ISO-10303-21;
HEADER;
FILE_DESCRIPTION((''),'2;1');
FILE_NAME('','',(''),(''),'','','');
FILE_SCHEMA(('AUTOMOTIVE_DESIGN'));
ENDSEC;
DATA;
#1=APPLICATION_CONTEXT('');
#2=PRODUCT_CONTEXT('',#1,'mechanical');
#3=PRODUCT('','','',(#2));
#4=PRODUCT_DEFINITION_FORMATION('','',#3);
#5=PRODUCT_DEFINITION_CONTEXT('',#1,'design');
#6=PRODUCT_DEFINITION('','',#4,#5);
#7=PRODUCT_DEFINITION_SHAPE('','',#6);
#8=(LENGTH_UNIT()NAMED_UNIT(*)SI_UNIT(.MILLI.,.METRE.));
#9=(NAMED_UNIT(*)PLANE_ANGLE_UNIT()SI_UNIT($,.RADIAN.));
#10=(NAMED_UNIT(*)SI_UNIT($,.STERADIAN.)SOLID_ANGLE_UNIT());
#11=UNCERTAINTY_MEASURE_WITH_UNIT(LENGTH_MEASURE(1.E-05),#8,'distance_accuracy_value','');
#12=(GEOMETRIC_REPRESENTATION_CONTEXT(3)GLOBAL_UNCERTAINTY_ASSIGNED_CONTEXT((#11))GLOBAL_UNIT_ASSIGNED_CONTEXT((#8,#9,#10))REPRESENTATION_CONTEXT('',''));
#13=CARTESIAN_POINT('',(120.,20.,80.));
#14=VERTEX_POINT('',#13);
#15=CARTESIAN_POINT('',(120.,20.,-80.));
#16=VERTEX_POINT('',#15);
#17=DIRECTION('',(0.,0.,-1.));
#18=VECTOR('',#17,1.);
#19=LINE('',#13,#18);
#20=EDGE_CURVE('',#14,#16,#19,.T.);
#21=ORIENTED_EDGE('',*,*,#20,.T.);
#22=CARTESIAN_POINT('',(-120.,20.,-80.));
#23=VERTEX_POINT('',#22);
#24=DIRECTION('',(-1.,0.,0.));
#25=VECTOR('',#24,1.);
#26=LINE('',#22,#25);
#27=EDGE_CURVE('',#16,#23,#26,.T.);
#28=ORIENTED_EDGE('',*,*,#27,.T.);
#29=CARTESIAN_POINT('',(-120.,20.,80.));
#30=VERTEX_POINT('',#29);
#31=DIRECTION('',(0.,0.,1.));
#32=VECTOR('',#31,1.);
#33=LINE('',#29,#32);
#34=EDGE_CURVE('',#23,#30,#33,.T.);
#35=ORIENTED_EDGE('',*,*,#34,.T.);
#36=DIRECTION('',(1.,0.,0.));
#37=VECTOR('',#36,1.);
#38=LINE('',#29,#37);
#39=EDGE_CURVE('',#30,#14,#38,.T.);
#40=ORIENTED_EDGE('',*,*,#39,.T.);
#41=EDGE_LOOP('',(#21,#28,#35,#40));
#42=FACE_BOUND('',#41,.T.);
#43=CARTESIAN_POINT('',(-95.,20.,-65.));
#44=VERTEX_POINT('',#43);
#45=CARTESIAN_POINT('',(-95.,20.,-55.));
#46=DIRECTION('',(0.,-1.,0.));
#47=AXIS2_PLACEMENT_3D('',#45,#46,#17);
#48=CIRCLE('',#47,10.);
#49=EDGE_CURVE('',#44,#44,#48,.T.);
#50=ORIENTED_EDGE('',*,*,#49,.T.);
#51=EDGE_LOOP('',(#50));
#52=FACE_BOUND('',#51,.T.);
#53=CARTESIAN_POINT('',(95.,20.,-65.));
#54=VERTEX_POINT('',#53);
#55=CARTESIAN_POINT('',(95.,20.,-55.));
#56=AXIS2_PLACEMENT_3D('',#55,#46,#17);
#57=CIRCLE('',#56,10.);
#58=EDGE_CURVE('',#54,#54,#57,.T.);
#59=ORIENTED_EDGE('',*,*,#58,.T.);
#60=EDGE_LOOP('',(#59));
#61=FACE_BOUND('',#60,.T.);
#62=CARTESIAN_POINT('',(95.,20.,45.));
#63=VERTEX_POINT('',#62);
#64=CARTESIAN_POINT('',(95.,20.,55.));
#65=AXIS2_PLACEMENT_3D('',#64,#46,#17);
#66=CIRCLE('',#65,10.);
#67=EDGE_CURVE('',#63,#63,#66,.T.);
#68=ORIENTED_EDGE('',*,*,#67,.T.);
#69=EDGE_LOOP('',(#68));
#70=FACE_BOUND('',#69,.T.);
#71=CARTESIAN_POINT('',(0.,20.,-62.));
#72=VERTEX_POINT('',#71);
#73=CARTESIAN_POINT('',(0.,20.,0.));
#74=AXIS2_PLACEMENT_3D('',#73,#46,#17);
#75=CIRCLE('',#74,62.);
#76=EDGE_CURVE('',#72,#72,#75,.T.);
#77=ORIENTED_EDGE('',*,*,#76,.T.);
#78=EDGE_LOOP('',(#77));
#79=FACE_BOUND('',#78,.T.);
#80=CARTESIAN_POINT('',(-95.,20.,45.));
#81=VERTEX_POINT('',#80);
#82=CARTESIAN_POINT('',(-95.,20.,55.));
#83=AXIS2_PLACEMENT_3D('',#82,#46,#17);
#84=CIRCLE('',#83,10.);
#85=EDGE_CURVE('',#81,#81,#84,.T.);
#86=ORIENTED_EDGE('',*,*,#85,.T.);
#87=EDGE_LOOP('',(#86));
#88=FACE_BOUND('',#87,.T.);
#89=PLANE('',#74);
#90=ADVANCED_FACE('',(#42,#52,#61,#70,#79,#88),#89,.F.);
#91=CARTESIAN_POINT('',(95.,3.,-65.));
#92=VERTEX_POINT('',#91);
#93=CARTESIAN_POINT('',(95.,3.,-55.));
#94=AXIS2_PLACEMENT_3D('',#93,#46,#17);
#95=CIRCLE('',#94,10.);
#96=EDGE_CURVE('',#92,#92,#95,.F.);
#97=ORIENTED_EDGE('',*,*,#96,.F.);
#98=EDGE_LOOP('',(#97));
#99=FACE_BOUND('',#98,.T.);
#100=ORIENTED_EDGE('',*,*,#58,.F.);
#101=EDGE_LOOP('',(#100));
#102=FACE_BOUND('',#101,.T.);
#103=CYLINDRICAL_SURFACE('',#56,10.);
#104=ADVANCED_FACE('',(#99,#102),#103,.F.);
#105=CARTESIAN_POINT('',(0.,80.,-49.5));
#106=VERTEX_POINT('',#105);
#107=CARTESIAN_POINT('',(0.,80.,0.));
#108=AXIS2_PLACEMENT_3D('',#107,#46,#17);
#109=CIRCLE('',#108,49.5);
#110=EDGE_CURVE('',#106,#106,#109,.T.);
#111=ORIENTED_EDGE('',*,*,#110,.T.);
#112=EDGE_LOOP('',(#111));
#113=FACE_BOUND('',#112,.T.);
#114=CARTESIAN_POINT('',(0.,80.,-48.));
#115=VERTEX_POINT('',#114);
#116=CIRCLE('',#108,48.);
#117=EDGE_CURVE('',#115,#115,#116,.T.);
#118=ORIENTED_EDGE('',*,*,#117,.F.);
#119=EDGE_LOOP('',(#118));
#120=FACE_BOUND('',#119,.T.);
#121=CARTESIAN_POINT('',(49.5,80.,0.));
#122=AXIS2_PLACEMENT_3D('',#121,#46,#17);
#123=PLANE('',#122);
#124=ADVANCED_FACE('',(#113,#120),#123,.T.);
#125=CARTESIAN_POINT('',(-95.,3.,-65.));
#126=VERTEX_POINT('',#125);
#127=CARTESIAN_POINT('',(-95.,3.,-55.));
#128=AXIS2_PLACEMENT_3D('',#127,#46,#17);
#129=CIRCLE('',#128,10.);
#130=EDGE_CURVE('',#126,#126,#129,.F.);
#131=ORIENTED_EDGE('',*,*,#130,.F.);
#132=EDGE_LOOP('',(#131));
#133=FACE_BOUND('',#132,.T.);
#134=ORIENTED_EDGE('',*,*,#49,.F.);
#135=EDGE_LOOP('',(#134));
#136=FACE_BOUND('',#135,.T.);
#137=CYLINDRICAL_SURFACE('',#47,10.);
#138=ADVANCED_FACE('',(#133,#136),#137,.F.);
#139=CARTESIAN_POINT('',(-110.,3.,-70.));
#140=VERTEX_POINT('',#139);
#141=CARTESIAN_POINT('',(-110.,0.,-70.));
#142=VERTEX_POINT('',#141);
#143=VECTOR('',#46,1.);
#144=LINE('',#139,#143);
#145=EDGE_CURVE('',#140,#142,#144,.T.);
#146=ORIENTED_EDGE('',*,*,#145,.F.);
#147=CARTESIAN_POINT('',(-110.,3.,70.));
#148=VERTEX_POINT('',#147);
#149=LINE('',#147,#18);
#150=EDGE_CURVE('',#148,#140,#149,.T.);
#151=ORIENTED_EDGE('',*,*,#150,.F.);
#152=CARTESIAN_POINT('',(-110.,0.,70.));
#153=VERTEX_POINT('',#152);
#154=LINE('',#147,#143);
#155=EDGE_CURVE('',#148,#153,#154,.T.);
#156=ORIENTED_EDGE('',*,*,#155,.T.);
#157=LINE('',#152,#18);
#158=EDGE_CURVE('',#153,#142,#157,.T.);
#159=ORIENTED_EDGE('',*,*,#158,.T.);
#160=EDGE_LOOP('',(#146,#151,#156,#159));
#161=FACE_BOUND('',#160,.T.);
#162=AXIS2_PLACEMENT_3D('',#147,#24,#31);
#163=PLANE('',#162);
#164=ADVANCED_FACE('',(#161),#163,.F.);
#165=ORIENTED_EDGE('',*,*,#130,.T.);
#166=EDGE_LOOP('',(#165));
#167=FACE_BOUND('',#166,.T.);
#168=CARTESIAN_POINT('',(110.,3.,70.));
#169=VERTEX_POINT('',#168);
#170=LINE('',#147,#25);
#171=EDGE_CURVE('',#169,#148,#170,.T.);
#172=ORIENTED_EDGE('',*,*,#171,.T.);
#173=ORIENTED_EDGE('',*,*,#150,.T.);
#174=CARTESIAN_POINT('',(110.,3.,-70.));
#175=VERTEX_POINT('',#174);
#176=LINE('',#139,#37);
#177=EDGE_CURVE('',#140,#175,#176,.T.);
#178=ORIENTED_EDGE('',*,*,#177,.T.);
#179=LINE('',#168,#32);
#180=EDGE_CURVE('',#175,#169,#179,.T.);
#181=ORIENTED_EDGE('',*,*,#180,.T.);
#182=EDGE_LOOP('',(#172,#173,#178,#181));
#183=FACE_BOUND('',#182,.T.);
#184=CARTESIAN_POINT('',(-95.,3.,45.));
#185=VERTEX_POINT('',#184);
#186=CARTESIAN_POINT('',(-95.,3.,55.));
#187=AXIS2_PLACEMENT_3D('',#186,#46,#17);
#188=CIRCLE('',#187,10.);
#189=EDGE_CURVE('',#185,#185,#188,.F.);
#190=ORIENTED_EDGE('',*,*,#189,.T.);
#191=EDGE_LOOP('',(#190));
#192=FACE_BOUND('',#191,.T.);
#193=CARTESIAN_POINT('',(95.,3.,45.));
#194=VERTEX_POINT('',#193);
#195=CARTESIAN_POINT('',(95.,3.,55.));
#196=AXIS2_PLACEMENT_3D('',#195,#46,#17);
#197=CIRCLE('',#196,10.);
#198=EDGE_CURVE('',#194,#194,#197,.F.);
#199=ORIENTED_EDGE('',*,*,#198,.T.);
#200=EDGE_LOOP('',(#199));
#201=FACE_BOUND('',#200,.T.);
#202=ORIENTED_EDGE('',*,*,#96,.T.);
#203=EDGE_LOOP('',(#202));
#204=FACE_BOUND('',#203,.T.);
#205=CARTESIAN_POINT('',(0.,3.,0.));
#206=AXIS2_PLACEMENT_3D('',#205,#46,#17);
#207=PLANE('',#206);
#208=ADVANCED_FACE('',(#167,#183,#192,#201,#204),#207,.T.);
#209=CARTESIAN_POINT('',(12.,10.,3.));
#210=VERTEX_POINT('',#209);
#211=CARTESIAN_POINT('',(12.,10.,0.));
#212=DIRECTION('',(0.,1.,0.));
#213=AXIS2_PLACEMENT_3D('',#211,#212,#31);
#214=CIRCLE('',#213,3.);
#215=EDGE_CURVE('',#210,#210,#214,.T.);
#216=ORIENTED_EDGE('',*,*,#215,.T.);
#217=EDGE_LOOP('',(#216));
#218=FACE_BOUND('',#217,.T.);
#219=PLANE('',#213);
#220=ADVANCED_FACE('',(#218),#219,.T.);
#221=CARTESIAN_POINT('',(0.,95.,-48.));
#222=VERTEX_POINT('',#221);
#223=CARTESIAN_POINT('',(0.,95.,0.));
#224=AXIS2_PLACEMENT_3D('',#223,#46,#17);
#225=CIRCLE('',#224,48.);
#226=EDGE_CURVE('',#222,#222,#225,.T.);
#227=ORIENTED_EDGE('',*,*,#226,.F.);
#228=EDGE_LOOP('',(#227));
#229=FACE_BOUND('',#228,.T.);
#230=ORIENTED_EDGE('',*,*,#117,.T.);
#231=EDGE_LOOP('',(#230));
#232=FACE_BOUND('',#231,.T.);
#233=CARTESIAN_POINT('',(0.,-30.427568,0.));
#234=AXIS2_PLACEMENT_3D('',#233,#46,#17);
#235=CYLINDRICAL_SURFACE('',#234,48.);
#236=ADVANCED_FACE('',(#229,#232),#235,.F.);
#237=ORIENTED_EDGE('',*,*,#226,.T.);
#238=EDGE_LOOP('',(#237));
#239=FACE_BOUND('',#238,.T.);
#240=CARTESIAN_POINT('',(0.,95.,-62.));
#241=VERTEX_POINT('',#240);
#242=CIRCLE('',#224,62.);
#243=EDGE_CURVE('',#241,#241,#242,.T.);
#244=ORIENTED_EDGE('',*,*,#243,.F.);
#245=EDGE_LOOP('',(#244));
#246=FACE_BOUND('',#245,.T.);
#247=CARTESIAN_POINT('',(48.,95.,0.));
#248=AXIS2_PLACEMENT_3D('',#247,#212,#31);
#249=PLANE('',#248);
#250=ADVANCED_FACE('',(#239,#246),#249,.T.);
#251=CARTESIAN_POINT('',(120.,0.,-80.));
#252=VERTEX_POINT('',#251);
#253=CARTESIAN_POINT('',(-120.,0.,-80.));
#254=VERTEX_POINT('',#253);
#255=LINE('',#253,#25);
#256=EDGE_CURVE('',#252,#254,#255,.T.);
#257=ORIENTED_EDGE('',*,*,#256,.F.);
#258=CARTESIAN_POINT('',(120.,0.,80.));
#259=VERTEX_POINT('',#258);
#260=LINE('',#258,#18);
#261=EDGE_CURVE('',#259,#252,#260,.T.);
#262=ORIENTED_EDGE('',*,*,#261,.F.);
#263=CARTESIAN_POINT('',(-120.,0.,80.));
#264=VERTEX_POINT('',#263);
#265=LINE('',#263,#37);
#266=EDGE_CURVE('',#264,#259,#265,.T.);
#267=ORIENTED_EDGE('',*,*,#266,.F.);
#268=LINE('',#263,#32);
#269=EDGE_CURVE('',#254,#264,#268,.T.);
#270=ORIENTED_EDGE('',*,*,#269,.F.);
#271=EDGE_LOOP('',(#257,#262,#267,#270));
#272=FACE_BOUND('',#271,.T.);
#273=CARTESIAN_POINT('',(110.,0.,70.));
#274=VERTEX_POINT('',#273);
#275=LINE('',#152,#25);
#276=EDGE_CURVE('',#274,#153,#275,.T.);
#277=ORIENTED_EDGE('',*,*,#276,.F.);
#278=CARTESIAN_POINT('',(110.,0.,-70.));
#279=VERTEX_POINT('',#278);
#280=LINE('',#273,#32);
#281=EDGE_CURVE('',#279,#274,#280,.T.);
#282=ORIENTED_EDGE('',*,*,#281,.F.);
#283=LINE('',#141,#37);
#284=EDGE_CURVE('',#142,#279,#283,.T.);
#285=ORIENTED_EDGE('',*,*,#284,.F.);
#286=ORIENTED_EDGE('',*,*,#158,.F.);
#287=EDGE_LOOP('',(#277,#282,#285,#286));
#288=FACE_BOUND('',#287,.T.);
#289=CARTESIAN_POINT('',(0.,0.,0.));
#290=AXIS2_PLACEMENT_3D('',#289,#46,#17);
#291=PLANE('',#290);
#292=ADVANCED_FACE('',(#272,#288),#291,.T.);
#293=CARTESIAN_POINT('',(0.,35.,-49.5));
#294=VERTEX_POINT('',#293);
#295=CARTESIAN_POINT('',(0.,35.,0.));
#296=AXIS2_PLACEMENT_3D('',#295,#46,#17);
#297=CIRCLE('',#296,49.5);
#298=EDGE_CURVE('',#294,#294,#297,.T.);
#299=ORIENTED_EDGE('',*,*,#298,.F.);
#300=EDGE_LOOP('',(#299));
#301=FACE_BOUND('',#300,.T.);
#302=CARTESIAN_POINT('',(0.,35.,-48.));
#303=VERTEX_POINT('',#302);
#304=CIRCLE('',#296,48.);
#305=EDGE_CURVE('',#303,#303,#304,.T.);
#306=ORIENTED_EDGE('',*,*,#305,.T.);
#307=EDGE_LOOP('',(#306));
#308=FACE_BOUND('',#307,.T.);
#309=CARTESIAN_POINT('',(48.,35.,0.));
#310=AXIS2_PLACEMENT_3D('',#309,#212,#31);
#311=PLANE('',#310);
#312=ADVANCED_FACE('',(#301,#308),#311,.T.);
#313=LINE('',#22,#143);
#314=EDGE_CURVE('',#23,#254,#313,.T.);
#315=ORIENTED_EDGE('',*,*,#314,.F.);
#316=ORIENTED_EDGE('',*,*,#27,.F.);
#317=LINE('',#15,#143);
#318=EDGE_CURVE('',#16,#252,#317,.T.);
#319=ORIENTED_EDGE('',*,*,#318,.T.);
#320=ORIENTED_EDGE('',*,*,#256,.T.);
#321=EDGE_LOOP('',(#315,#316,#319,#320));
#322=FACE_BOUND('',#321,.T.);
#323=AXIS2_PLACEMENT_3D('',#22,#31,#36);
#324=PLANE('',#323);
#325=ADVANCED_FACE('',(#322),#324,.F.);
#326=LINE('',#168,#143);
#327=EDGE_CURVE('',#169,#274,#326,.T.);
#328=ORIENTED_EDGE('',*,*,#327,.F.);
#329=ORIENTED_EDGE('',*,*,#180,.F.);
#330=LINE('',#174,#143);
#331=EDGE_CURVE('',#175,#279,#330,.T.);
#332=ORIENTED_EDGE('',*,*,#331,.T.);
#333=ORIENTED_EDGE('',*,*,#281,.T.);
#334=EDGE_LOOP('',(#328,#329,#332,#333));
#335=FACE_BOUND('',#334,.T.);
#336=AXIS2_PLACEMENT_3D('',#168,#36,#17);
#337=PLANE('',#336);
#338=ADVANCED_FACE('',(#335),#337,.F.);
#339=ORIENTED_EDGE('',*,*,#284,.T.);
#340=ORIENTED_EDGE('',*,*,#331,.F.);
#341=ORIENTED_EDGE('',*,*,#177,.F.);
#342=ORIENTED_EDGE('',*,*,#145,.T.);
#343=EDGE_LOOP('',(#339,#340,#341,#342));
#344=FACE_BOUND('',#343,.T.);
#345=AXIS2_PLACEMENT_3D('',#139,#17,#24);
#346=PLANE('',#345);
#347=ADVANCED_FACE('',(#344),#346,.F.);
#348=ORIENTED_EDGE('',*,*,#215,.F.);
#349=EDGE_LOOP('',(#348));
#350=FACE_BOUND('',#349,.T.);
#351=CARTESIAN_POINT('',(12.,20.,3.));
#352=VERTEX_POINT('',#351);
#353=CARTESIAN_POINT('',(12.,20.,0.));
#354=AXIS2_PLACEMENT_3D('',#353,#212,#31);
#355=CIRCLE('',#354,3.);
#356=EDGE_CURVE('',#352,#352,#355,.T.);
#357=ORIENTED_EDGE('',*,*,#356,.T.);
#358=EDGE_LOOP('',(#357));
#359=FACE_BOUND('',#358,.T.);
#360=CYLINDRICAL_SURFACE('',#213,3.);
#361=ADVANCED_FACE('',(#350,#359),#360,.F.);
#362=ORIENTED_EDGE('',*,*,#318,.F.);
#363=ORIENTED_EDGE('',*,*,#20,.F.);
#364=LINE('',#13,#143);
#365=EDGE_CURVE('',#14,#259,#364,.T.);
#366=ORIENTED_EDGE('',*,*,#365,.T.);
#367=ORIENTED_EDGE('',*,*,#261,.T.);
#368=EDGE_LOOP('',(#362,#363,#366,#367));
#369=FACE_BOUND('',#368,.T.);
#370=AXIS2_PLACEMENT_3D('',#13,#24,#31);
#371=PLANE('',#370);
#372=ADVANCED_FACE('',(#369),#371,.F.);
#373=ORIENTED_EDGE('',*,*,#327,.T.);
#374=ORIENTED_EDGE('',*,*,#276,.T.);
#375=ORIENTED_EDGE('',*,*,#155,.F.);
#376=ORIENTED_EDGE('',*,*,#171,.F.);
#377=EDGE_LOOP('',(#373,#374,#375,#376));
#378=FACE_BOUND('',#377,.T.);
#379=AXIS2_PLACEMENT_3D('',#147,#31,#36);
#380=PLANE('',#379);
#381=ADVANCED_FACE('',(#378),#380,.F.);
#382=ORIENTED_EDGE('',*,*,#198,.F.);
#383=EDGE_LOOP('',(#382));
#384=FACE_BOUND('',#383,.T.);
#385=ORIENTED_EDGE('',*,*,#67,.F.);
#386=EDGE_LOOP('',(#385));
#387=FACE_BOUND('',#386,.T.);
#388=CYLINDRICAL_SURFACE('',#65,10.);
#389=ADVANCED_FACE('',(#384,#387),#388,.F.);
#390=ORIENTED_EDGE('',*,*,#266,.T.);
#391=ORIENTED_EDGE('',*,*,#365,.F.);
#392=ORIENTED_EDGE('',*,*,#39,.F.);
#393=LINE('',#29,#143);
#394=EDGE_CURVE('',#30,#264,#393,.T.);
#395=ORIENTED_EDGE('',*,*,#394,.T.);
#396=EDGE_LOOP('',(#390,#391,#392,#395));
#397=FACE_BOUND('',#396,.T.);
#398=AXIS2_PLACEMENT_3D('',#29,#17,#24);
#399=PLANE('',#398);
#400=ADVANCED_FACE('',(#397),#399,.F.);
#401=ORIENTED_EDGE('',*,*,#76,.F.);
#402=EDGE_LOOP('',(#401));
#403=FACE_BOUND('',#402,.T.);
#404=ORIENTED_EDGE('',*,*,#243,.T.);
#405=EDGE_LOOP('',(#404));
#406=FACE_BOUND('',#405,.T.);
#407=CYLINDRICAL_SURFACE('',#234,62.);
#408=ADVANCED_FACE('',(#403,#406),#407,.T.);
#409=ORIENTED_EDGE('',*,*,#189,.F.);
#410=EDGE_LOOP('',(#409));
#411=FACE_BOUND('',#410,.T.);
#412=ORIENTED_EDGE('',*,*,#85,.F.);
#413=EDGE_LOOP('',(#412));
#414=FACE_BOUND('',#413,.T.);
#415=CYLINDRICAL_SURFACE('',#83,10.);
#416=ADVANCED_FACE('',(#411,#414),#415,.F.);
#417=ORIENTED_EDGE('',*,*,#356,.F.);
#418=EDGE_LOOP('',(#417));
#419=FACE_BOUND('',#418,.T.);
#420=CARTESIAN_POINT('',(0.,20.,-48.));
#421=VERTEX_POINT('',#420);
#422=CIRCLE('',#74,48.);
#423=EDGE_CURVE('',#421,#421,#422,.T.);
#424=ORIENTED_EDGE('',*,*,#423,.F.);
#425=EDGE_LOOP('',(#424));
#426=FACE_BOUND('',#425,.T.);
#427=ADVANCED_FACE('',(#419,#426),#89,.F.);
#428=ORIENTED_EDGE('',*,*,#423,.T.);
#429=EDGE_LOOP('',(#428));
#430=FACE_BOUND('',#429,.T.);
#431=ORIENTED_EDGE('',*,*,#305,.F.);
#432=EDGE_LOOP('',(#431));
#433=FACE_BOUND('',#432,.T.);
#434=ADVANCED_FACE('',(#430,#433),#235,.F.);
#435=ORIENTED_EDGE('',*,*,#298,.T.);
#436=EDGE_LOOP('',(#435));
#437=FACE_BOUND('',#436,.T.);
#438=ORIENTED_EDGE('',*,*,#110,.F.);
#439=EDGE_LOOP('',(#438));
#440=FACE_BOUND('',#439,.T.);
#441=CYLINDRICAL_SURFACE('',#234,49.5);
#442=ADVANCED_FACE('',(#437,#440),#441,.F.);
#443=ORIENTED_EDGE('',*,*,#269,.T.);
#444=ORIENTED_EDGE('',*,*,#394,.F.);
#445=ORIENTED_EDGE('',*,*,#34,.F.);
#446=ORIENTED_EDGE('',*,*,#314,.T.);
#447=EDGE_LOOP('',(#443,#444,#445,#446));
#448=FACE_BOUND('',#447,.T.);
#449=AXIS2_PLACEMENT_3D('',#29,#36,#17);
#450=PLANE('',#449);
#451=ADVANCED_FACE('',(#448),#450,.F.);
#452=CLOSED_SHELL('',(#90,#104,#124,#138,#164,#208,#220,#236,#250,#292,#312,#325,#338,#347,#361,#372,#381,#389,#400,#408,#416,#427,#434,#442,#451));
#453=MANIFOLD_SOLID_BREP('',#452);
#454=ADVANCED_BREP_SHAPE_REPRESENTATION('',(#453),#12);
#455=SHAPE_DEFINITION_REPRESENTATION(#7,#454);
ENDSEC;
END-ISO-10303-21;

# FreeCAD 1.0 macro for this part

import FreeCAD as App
import Part
import Sketcher
from FreeCAD import Vector


def add_polygon(sketch, points):
    """Adds a closed chain of lines whose ends are joined by coincident constraints."""
    first, n = sketch.GeometryCount, len(points)
    for a, b in zip(points, points[1:] + points[:1]):
        sketch.addGeometry(Part.LineSegment(App.Vector(*a, 0), App.Vector(*b, 0)), False)
    for i in range(n):
        sketch.addConstraint(Sketcher.Constraint("Coincident", first + i, 2, first + (i + 1) % n, 1))

doc = App.newDocument("Part")
params = doc.addObject("Spreadsheet::Sheet", "Params")
for row, (alias, value) in enumerate([
    ("sketch1_width", "240 mm"),
    ("sketch1_height", "160 mm"),
    ("pad1_length", "20 mm"),
    ("sketch2_width", "14 mm"),
    ("sketch2_height", "15 mm"),
    ("sketch2_height2", "75 mm"),
    ("sketch2_width2", "1.5 mm"),
    ("revolution_angle", "360 deg"),
    ("sketch3_diameter", "20 mm"),
    ("pocket1_length", "20 mm"),
    ("sketch4_width", "220 mm"),
    ("sketch4_height", "140 mm"),
    ("pocket2_length", "3 mm"),
    ("sketch5_diameter", "6 mm"),
    ("pocket3_length", "10 mm"),
], start=1):
    params.set(f"A{row}", alias)
    params.set(f"B{row}", "=" + value)
    params.setAlias(f"B{row}", alias)

body = doc.addObject("PartDesign::Body", "Body")

sketch1 = body.newObject("Sketcher::SketchObject", "Sketch")
sketch1.AttachmentSupport = (doc.getObject("XZ_Plane"), [""])
sketch1.MapMode = "FlatFace"
add_polygon(sketch1, [(-120, -80), (-120, 80), (120, 80), (120, -80)])
sketch1.addConstraint([
    Sketcher.Constraint("Vertical", 0),
    Sketcher.Constraint("Horizontal", 1),
    Sketcher.Constraint("Vertical", 2),
    Sketcher.Constraint("Horizontal", 3),
    Sketcher.Constraint("Symmetric", 0, 2, 2, 2, -1, 1),
    Sketcher.Constraint("DistanceX", 1, 1, 1, 2, 240.0),
    Sketcher.Constraint("DistanceY", 0, 1, 0, 2, 160.0),
])
sketch1.setExpression("Constraints[9]", "Params.sketch1_width")
sketch1.setExpression("Constraints[10]", "Params.sketch1_height")
pad1 = body.newObject("PartDesign::Pad", "Pad")
pad1.Profile = sketch1
pad1.setExpression("Length", "Params.pad1_length")
pad1.Reversed = True

sketch2 = body.newObject("Sketcher::SketchObject", "Sketch001")
sketch2.AttachmentSupport = (doc.getObject("XY_Plane"), [""])
sketch2.MapMode = "FlatFace"
add_polygon(sketch2, [(48, 35), (48, 20), (62, 20), (62, 95), (48, 95), (48, 80), (49.5, 80), (49.5, 35)])
sketch2.addConstraint([
    Sketcher.Constraint("Vertical", 0),
    Sketcher.Constraint("Horizontal", 1),
    Sketcher.Constraint("Vertical", 2),
    Sketcher.Constraint("Horizontal", 3),
    Sketcher.Constraint("Vertical", 4),
    Sketcher.Constraint("Horizontal", 5),
    Sketcher.Constraint("Vertical", 6),
    Sketcher.Constraint("Horizontal", 7),
    Sketcher.Constraint("Vertical", 0, 2, 3, 2),
    Sketcher.Constraint("Equal", 0, 4),
    Sketcher.Constraint("DistanceX", 1, 1, 1, 2, 14.0),
    Sketcher.Constraint("DistanceY", 0, 2, 0, 1, 15.0),
    Sketcher.Constraint("DistanceY", 2, 1, 2, 2, 75.0),
    Sketcher.Constraint("DistanceX", 5, 1, 5, 2, 1.5),
    Sketcher.Constraint("DistanceX", -1, 1, 0, 2, 48.0),
    Sketcher.Constraint("DistanceY", -1, 1, 0, 2, 20.0),
])
sketch2.setExpression("Constraints[18]", "Params.sketch2_width")
sketch2.setExpression("Constraints[19]", "Params.sketch2_height")
sketch2.setExpression("Constraints[20]", "Params.sketch2_height2")
sketch2.setExpression("Constraints[21]", "Params.sketch2_width2")
revolution = body.newObject("PartDesign::Revolution", "Revolution")
revolution.Profile = sketch2
revolution.ReferenceAxis = (sketch2, ["V_Axis"])
revolution.setExpression("Angle", "Params.revolution_angle")

sketch3 = body.newObject("Sketcher::SketchObject", "Sketch002")
sketch3.AttachmentSupport = (doc.getObject("XZ_Plane"), [""])
sketch3.MapMode = "FlatFace"
sketch3.addGeometry([
    Part.Circle(Vector(95, 55, 0), Vector(0, 0, 1), 10),
    Part.Circle(Vector(-95, 55, 0), Vector(0, 0, 1), 10),
    Part.Circle(Vector(-95, -55, 0), Vector(0, 0, 1), 10),
    Part.Circle(Vector(95, -55, 0), Vector(0, 0, 1), 10),
], False)
sketch3.addConstraint([
    Sketcher.Constraint("Equal", 0, 1),
    Sketcher.Constraint("Equal", 1, 2),
    Sketcher.Constraint("Equal", 2, 3),
    Sketcher.Constraint("Symmetric", 0, 3, 2, 3, -1, 1),
    Sketcher.Constraint("Symmetric", 1, 3, 3, 3, -1, 1),
    Sketcher.Constraint("Symmetric", 0, 3, 1, 3, -2),
    Sketcher.Constraint("Diameter", 0, 20.0),
    Sketcher.Constraint("DistanceX", -1, 1, 0, 3, 95.0),
    Sketcher.Constraint("DistanceY", -1, 1, 0, 3, 55.0),
])
sketch3.setExpression("Constraints[6]", "Params.sketch3_diameter")
pocket1 = body.newObject("PartDesign::Pocket", "Pocket")
pocket1.Profile = sketch3
pocket1.setExpression("Length", "Params.pocket1_length")

sketch4 = body.newObject("Sketcher::SketchObject", "Sketch003")
sketch4.AttachmentSupport = (doc.getObject("XZ_Plane"), [""])
sketch4.MapMode = "FlatFace"
add_polygon(sketch4, [(-110, 70), (-110, -70), (110, -70), (110, 70)])
sketch4.addConstraint([
    Sketcher.Constraint("Vertical", 0),
    Sketcher.Constraint("Horizontal", 1),
    Sketcher.Constraint("Vertical", 2),
    Sketcher.Constraint("Horizontal", 3),
    Sketcher.Constraint("Symmetric", 0, 2, 2, 2, -1, 1),
    Sketcher.Constraint("DistanceX", 1, 1, 1, 2, 220.0),
    Sketcher.Constraint("DistanceY", 0, 2, 0, 1, 140.0),
])
sketch4.setExpression("Constraints[9]", "Params.sketch4_width")
sketch4.setExpression("Constraints[10]", "Params.sketch4_height")
pocket2 = body.newObject("PartDesign::Pocket", "Pocket001")
pocket2.Profile = sketch4
pocket2.setExpression("Length", "Params.pocket2_length")

sketch5 = body.newObject("Sketcher::SketchObject", "Sketch004")
sketch5.AttachmentSupport = (doc.getObject("XZ_Plane"), [""])
sketch5.MapMode = "FlatFace"
sketch5.AttachmentOffset = App.Placement(Vector(0, 0, -20), App.Rotation())
sketch5.addGeometry(Part.Circle(Vector(12, 0, 0), Vector(0, 0, 1), 3), False)
sketch5.addConstraint([
    Sketcher.Constraint("PointOnObject", 0, 3, -1),
    Sketcher.Constraint("Diameter", 0, 6.0),
    Sketcher.Constraint("DistanceX", -1, 1, 0, 3, 12.0),
])
sketch5.setExpression("Constraints[1]", "Params.sketch5_diameter")
pocket3 = body.newObject("PartDesign::Pocket", "Pocket002")
pocket3.Profile = sketch5
pocket3.setExpression("Length", "Params.pocket3_length")
pocket3.Reversed = True

doc.recompute()
